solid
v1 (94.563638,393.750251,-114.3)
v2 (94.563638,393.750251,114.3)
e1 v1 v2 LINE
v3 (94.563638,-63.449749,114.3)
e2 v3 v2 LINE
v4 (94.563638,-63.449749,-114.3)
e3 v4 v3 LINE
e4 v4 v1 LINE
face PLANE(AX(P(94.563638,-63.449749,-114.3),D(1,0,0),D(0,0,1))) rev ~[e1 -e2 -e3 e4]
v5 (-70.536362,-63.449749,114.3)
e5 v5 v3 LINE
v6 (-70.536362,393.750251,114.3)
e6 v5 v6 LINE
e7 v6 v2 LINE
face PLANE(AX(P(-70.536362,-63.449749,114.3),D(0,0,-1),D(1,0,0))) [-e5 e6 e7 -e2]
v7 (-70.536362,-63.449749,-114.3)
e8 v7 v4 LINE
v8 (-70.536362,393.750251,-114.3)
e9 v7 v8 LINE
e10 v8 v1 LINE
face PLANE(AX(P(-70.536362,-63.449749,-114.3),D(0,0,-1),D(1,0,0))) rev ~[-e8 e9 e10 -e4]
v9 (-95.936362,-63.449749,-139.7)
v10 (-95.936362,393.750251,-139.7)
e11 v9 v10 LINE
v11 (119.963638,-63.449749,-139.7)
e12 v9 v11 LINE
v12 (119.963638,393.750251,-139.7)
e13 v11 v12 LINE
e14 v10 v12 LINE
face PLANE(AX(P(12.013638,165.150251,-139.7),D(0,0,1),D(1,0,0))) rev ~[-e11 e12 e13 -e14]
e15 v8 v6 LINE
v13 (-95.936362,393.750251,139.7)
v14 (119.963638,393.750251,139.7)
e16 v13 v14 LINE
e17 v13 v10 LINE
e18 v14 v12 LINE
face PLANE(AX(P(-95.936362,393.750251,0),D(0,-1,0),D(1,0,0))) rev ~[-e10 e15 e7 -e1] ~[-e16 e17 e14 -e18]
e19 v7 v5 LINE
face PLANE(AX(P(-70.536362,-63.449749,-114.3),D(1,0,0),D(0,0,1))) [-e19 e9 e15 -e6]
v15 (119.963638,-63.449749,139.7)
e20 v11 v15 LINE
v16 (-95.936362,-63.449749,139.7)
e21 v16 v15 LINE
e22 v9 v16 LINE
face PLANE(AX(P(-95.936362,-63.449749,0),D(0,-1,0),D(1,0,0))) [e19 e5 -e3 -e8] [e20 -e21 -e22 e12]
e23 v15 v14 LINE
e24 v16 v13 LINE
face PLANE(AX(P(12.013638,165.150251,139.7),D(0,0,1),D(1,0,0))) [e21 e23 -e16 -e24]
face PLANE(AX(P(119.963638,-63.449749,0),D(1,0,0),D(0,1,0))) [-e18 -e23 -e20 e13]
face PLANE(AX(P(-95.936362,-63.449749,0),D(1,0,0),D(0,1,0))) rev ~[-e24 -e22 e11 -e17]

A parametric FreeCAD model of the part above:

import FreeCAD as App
import Part
import Sketcher
Q = App.Units.Quantity

doc = App.newDocument("Part")
body = doc.addObject("PartDesign::Body", "Body")

# Sketch on XY plane
sketch1 = body.newObject("Sketcher::SketchObject", "Sketch")
sketch1.AttachmentSupport = (doc.getObject("XY_Plane"), [""])
sketch1.MapMode = "FlatFace"
sketch1.addGeometry(Part.LineSegment(App.Vector(-96, 394, 0), App.Vector(-96, -63, 0)), False)
sketch1.addGeometry(Part.LineSegment(App.Vector(-96, -63, 0), App.Vector(120, -63, 0)), False)
sketch1.addGeometry(Part.LineSegment(App.Vector(120, -63, 0), App.Vector(120, 394, 0)), False)
sketch1.addGeometry(Part.LineSegment(App.Vector(120, 394, 0), App.Vector(-96, 394, 0)), False)
sketch1.addConstraint(Sketcher.Constraint("Coincident", 0, 2, 1, 1))
sketch1.addConstraint(Sketcher.Constraint("Coincident", 1, 2, 2, 1))
sketch1.addConstraint(Sketcher.Constraint("Coincident", 2, 2, 3, 1))
sketch1.addConstraint(Sketcher.Constraint("Coincident", 3, 2, 0, 1))
sketch1.addConstraint(Sketcher.Constraint("Vertical", 0))
sketch1.addConstraint(Sketcher.Constraint("Horizontal", 1))
sketch1.addConstraint(Sketcher.Constraint("Vertical", 2))
sketch1.addConstraint(Sketcher.Constraint("Horizontal", 3))
sketch1.addConstraint(Sketcher.Constraint("DistanceY", 0, 2, 0, 1, Q("18 in")))
sketch1.addConstraint(Sketcher.Constraint("DistanceX", 1, 1, 1, 2, Q("8.5 in")))
sketch1.addConstraint(Sketcher.Constraint("DistanceY", 0, 2, -1, 1, 63.449749))
sketch1.addConstraint(Sketcher.Constraint("DistanceX", -1, 1, 1, 2, 119.963638))
pad1 = body.newObject("PartDesign::Pad", "Pad")
pad1.Profile = sketch1
pad1.Length = Q("11 in")
pad1.Midplane = True

# Sketch on XZ plane
sketch2 = body.newObject("Sketcher::SketchObject", "Sketch001")
sketch2.AttachmentSupport = (doc.getObject("XZ_Plane"), [""])
sketch2.MapMode = "FlatFace"
sketch2.AttachmentOffset = App.Placement(App.Vector(0, 0, 63.449749), App.Rotation())
sketch2.addGeometry(Part.LineSegment(App.Vector(-71, 114, 0), App.Vector(-71, -114, 0)), False)
sketch2.addGeometry(Part.LineSegment(App.Vector(-71, -114, 0), App.Vector(95, -114, 0)), False)
sketch2.addGeometry(Part.LineSegment(App.Vector(95, -114, 0), App.Vector(95, 114, 0)), False)
sketch2.addGeometry(Part.LineSegment(App.Vector(95, 114, 0), App.Vector(-71, 114, 0)), False)
sketch2.addConstraint(Sketcher.Constraint("Coincident", 0, 2, 1, 1))
sketch2.addConstraint(Sketcher.Constraint("Coincident", 1, 2, 2, 1))
sketch2.addConstraint(Sketcher.Constraint("Coincident", 2, 2, 3, 1))
sketch2.addConstraint(Sketcher.Constraint("Coincident", 3, 2, 0, 1))
sketch2.addConstraint(Sketcher.Constraint("Vertical", 0))
sketch2.addConstraint(Sketcher.Constraint("Horizontal", 1))
sketch2.addConstraint(Sketcher.Constraint("Vertical", 2))
sketch2.addConstraint(Sketcher.Constraint("Horizontal", 3))
sketch2.addConstraint(Sketcher.Constraint("DistanceY", 0, 2, 0, 1, Q("9 in")))
sketch2.addConstraint(Sketcher.Constraint("DistanceX", 1, 1, 1, 2, Q("6.5 in")))
sketch2.addConstraint(Sketcher.Constraint("DistanceY", 0, 2, -1, 1, Q("4.5 in")))
sketch2.addConstraint(Sketcher.Constraint("DistanceX", 0, 2, -1, 1, 70.536362))
pocket1 = body.newObject("PartDesign::Pocket", "Pocket")
pocket1.Profile = sketch2
pocket1.Length = Q("18.8 in")

doc.recompute()
